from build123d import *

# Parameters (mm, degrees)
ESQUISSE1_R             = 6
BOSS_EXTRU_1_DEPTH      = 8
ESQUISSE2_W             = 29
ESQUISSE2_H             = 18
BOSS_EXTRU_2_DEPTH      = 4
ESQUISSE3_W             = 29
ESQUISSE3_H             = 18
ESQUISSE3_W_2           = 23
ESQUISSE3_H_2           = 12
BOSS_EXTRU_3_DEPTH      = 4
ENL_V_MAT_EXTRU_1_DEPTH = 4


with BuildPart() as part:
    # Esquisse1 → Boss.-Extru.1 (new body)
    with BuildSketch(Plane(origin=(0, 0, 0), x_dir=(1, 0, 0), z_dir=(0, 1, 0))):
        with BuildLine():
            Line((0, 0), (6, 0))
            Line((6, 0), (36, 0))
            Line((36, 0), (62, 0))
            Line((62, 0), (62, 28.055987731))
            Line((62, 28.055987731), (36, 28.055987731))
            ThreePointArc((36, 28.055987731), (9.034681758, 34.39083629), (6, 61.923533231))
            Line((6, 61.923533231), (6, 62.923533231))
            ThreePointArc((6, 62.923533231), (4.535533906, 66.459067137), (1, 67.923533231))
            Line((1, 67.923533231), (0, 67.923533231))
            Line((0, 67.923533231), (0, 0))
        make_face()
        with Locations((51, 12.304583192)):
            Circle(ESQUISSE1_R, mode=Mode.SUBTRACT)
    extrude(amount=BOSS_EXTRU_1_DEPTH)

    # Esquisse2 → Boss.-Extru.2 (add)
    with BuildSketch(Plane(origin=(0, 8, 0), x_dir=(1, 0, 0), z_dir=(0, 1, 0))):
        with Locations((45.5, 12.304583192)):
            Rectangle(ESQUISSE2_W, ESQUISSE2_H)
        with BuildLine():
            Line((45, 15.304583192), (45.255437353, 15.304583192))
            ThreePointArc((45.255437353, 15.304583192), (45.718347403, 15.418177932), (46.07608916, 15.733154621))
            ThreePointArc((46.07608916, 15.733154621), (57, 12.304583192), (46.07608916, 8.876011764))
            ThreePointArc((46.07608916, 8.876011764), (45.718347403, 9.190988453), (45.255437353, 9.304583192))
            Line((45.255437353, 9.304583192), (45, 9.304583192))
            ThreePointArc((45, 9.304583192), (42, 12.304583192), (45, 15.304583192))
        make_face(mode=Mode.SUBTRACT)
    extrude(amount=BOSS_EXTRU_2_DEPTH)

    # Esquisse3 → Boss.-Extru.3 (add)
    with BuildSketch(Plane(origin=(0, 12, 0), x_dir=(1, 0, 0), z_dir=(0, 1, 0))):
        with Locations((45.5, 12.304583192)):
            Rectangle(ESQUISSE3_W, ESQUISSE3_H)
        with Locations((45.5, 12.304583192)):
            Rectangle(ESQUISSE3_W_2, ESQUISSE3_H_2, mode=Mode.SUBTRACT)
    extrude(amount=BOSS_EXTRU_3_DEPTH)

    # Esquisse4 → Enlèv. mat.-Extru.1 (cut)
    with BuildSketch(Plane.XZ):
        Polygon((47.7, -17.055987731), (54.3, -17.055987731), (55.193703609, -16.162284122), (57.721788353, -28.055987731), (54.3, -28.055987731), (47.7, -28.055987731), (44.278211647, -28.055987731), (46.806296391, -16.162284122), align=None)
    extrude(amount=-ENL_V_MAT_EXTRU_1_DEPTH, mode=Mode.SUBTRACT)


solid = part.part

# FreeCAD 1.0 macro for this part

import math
import FreeCAD as App
import Part
import Sketcher
from FreeCAD import Vector
Q = App.Units.Quantity


def add_polygon(sketch, points):
    """Adds a closed chain of lines whose ends are joined by coincident constraints."""
    first, n = sketch.GeometryCount, len(points)
    for a, b in zip(points, points[1:] + points[:1]):
        sketch.addGeometry(Part.LineSegment(App.Vector(*a, 0), App.Vector(*b, 0)), False)
    for i in range(n):
        sketch.addConstraint(Sketcher.Constraint("Coincident", first + i, 2, first + (i + 1) % n, 1))

doc = App.newDocument("Part")
body = doc.addObject("PartDesign::Body", "Body")

sketch1 = body.newObject("Sketcher::SketchObject", "Sketch")
sketch1.AttachmentSupport = (doc.getObject("XZ_Plane"), [""])
sketch1.MapMode = "FlatFace"
sketch1.addGeometry([
    Part.LineSegment(Vector(0, 0, 0), Vector(62, 0, 0)),
    Part.LineSegment(Vector(62, 0, 0), Vector(62, -28.1, 0)),
    Part.LineSegment(Vector(62, -28.1, 0), Vector(36, -28.1, 0)),
    Part.ArcOfCircle(Part.Circle(Vector(27, -50.3, 0), Vector(0, 0, 1), 24), math.radians(68), math.radians(209)),
    Part.LineSegment(Vector(6, -61.9, 0), Vector(6, -62.9, 0)),
    Part.ArcOfCircle(Part.Circle(Vector(1, -62.9, 0), Vector(0, 0, 1), 5), math.radians(-90), math.radians(0)),
    Part.LineSegment(Vector(1, -67.9, 0), Vector(0, -67.9, 0)),
    Part.LineSegment(Vector(0, -67.9, 0), Vector(0, 0, 0)),
    Part.Circle(Vector(51, -12.3, 0), Vector(0, 0, 1), 6),
], False)
sketch1.addConstraint([
    Sketcher.Constraint("Coincident", 0, 2, 1, 1),
    Sketcher.Constraint("Coincident", 1, 2, 2, 1),
    Sketcher.Constraint("Coincident", 2, 2, 3, 1),
    Sketcher.Constraint("Coincident", 3, 2, 4, 1),
    Sketcher.Constraint("Tangent", 4, 2, 5, 2),
    Sketcher.Constraint("Tangent", 5, 1, 6, 1),
    Sketcher.Constraint("Coincident", 6, 2, 7, 1),
    Sketcher.Constraint("Coincident", 7, 2, 0, 1),
    Sketcher.Constraint("Horizontal", 0),
    Sketcher.Constraint("Vertical", 1),
    Sketcher.Constraint("Horizontal", 2),
    Sketcher.Constraint("Vertical", 4),
    Sketcher.Constraint("Horizontal", 6),
    Sketcher.Constraint("Vertical", 7),
    Sketcher.Constraint("Coincident", 7, 2, -1, 1),
    Sketcher.Constraint("Equal", 6, 4),
    Sketcher.Constraint("Diameter", 8, Q("12 mm")),
    Sketcher.Constraint("Radius", 3, Q("24 mm")),
    Sketcher.Constraint("Radius", 5, Q("5 mm")),
    Sketcher.Constraint("DistanceX", 0, 1, 0, 2, Q("62 mm")),
    Sketcher.Constraint("DistanceX", 2, 2, 2, 1, Q("26 mm")),
    Sketcher.Constraint("DistanceX", 6, 2, 6, 1, Q("1 mm")),
    Sketcher.Constraint("DistanceX", -1, 1, 3, 3, Q("27 mm")),
    Sketcher.Constraint("DistanceX", -1, 1, 8, 3, Q("51 mm")),
    Sketcher.Constraint("DistanceY", 3, 3, 8, 3, Q("38 mm")),
    Sketcher.Constraint("DistanceY", 1, 2, 1, 1, Q("28.055988 mm")),
])
pad1 = body.newObject("PartDesign::Pad", "Pad")
pad1.Profile = sketch1
pad1.Length = 8
pad1.Reversed = True

sketch2 = body.newObject("Sketcher::SketchObject", "Sketch001")
sketch2.AttachmentSupport = (doc.getObject("XZ_Plane"), [""])
sketch2.MapMode = "FlatFace"
sketch2.AttachmentOffset = App.Placement(Vector(0, 0, -8), App.Rotation())
add_polygon(sketch2, [(31, -21.3), (31, -3.3), (60, -3.3), (60, -21.3)])
sketch2.addGeometry(Part.ArcOfCircle(Part.Circle(Vector(45, -12.3, 0), Vector(0, 0, 1), 3), math.radians(90), math.radians(270)), False)
sketch2.addGeometry(Part.LineSegment(Vector(45, -15.3, 0), Vector(45.26, -15.3, 0)), False)
sketch2.addGeometry(Part.ArcOfCircle(Part.Circle(Vector(45.26, -16.3, 0), Vector(0, 0, 1), 1), math.radians(35), math.radians(90)), False)
sketch2.addGeometry(Part.ArcOfCircle(Part.Circle(Vector(51, -12.3, 0), Vector(0, 0, 1), 6), math.radians(-145), math.radians(145)), False)
sketch2.addGeometry(Part.ArcOfCircle(Part.Circle(Vector(45.26, -8.3, 0), Vector(0, 0, 1), 1), math.radians(-90), math.radians(-35)), False)
sketch2.addGeometry(Part.LineSegment(Vector(45.26, -9.3, 0), Vector(45, -9.3, 0)), False)
sketch2.addConstraint([
    Sketcher.Constraint("Tangent", 4, 2, 5, 1),
    Sketcher.Constraint("Tangent", 5, 2, 6, 2),
    Sketcher.Constraint("Tangent", 6, 1, 7, 1),
    Sketcher.Constraint("Tangent", 7, 2, 8, 2),
    Sketcher.Constraint("Tangent", 8, 1, 9, 1),
    Sketcher.Constraint("Tangent", 9, 2, 4, 1),
    Sketcher.Constraint("Vertical", 0),
    Sketcher.Constraint("Horizontal", 1),
    Sketcher.Constraint("Vertical", 2),
    Sketcher.Constraint("Horizontal", 3),
    Sketcher.Constraint("Horizontal", 5),
    Sketcher.Constraint("Horizontal", 9),
    Sketcher.Constraint("Equal", 6, 8),
    Sketcher.Constraint("Horizontal", 4, 3, 7, 3),
    Sketcher.Constraint("Radius", 4, Q("3 mm")),
    Sketcher.Constraint("Radius", 6, Q("1 mm")),
    Sketcher.Constraint("Radius", 7, Q("6 mm")),
    Sketcher.Constraint("DistanceX", 1, 1, 1, 2, Q("29 mm")),
    Sketcher.Constraint("DistanceY", 0, 1, 0, 2, Q("18 mm")),
    Sketcher.Constraint("DistanceX", -1, 1, 4, 3, Q("45 mm")),
    Sketcher.Constraint("DistanceX", -1, 1, 7, 3, Q("51 mm")),
    Sketcher.Constraint("DistanceX", -1, 1, 0, 2, Q("31 mm")),
    Sketcher.Constraint("DistanceY", 8, 3, 0, 2, Q("5 mm")),
    Sketcher.Constraint("DistanceY", 7, 2, -1, 1, Q("8.876012 mm")),
])
pad2 = body.newObject("PartDesign::Pad", "Pad001")
pad2.Profile = sketch2
pad2.Length = 4
pad2.Reversed = True

sketch3 = body.newObject("Sketcher::SketchObject", "Sketch002")
sketch3.AttachmentSupport = (doc.getObject("XZ_Plane"), [""])
sketch3.MapMode = "FlatFace"
sketch3.AttachmentOffset = App.Placement(Vector(0, 0, -12), App.Rotation())
add_polygon(sketch3, [(31, -21), (31, -3), (60, -3), (60, -21)])
add_polygon(sketch3, [(57, -6), (34, -6), (34, -18), (57, -18)])
sketch3.addConstraint([
    Sketcher.Constraint("Vertical", 0),
    Sketcher.Constraint("Horizontal", 1),
    Sketcher.Constraint("Vertical", 2),
    Sketcher.Constraint("Horizontal", 3),
    Sketcher.Constraint("Horizontal", 4),
    Sketcher.Constraint("Vertical", 5),
    Sketcher.Constraint("Horizontal", 6),
    Sketcher.Constraint("Vertical", 7),
    Sketcher.Constraint("DistanceX", 1, 1, 1, 2, Q("29 mm")),
    Sketcher.Constraint("DistanceX", 4, 2, 4, 1, Q("23 mm")),
    Sketcher.Constraint("DistanceY", 0, 1, 0, 2, Q("18 mm")),
    Sketcher.Constraint("DistanceY", 5, 2, 5, 1, Q("12 mm")),
    Sketcher.Constraint("DistanceX", -1, 1, 0, 2, Q("31 mm")),
    Sketcher.Constraint("DistanceX", -1, 1, 4, 2, Q("34 mm")),
    Sketcher.Constraint("DistanceY", 4, 2, 0, 2, Q("3 mm")),
    Sketcher.Constraint("DistanceY", 0, 2, -1, 1, Q("3.304583 mm")),
])
pad3 = body.newObject("PartDesign::Pad", "Pad002")
pad3.Profile = sketch3
pad3.Length = 4
pad3.Reversed = True

sketch4 = body.newObject("Sketcher::SketchObject", "Sketch003")
sketch4.AttachmentSupport = (doc.getObject("XZ_Plane"), [""])
sketch4.MapMode = "FlatFace"
add_polygon(sketch4, [(54.3, -17.1), (47.7, -17.1), (46.8, -16.2), (44.3, -28.1), (57.7, -28.1), (55.2, -16.2)])
sketch4.addConstraint([
    Sketcher.Constraint("Horizontal", 0),
    Sketcher.Constraint("Horizontal", 3),
    Sketcher.Constraint("Perpendicular", 1, 5),
    Sketcher.Constraint("Horizontal", 1, 2, 4, 2),
    Sketcher.Constraint("Equal", 2, 4),
    Sketcher.Constraint("Equal", 1, 5),
    Sketcher.Constraint("Angle", 2, Q("-102 deg")),
    Sketcher.Constraint("DistanceX", 0, 2, 0, 1, Q("6.6 mm")),
    Sketcher.Constraint("DistanceY", 2, 2, 0, 2, Q("11 mm")),
    Sketcher.Constraint("DistanceX", -1, 1, 0, 2, Q("47.7 mm")),
    Sketcher.Constraint("DistanceX", 3, 1, 3, 2, Q("13.443577 mm")),
    Sketcher.Constraint("DistanceY", 0, 2, -1, 1, Q("17.055988 mm")),
])
pocket1 = body.newObject("PartDesign::Pocket", "Pocket")
pocket1.Profile = sketch4
pocket1.Length = 4

doc.recompute()
